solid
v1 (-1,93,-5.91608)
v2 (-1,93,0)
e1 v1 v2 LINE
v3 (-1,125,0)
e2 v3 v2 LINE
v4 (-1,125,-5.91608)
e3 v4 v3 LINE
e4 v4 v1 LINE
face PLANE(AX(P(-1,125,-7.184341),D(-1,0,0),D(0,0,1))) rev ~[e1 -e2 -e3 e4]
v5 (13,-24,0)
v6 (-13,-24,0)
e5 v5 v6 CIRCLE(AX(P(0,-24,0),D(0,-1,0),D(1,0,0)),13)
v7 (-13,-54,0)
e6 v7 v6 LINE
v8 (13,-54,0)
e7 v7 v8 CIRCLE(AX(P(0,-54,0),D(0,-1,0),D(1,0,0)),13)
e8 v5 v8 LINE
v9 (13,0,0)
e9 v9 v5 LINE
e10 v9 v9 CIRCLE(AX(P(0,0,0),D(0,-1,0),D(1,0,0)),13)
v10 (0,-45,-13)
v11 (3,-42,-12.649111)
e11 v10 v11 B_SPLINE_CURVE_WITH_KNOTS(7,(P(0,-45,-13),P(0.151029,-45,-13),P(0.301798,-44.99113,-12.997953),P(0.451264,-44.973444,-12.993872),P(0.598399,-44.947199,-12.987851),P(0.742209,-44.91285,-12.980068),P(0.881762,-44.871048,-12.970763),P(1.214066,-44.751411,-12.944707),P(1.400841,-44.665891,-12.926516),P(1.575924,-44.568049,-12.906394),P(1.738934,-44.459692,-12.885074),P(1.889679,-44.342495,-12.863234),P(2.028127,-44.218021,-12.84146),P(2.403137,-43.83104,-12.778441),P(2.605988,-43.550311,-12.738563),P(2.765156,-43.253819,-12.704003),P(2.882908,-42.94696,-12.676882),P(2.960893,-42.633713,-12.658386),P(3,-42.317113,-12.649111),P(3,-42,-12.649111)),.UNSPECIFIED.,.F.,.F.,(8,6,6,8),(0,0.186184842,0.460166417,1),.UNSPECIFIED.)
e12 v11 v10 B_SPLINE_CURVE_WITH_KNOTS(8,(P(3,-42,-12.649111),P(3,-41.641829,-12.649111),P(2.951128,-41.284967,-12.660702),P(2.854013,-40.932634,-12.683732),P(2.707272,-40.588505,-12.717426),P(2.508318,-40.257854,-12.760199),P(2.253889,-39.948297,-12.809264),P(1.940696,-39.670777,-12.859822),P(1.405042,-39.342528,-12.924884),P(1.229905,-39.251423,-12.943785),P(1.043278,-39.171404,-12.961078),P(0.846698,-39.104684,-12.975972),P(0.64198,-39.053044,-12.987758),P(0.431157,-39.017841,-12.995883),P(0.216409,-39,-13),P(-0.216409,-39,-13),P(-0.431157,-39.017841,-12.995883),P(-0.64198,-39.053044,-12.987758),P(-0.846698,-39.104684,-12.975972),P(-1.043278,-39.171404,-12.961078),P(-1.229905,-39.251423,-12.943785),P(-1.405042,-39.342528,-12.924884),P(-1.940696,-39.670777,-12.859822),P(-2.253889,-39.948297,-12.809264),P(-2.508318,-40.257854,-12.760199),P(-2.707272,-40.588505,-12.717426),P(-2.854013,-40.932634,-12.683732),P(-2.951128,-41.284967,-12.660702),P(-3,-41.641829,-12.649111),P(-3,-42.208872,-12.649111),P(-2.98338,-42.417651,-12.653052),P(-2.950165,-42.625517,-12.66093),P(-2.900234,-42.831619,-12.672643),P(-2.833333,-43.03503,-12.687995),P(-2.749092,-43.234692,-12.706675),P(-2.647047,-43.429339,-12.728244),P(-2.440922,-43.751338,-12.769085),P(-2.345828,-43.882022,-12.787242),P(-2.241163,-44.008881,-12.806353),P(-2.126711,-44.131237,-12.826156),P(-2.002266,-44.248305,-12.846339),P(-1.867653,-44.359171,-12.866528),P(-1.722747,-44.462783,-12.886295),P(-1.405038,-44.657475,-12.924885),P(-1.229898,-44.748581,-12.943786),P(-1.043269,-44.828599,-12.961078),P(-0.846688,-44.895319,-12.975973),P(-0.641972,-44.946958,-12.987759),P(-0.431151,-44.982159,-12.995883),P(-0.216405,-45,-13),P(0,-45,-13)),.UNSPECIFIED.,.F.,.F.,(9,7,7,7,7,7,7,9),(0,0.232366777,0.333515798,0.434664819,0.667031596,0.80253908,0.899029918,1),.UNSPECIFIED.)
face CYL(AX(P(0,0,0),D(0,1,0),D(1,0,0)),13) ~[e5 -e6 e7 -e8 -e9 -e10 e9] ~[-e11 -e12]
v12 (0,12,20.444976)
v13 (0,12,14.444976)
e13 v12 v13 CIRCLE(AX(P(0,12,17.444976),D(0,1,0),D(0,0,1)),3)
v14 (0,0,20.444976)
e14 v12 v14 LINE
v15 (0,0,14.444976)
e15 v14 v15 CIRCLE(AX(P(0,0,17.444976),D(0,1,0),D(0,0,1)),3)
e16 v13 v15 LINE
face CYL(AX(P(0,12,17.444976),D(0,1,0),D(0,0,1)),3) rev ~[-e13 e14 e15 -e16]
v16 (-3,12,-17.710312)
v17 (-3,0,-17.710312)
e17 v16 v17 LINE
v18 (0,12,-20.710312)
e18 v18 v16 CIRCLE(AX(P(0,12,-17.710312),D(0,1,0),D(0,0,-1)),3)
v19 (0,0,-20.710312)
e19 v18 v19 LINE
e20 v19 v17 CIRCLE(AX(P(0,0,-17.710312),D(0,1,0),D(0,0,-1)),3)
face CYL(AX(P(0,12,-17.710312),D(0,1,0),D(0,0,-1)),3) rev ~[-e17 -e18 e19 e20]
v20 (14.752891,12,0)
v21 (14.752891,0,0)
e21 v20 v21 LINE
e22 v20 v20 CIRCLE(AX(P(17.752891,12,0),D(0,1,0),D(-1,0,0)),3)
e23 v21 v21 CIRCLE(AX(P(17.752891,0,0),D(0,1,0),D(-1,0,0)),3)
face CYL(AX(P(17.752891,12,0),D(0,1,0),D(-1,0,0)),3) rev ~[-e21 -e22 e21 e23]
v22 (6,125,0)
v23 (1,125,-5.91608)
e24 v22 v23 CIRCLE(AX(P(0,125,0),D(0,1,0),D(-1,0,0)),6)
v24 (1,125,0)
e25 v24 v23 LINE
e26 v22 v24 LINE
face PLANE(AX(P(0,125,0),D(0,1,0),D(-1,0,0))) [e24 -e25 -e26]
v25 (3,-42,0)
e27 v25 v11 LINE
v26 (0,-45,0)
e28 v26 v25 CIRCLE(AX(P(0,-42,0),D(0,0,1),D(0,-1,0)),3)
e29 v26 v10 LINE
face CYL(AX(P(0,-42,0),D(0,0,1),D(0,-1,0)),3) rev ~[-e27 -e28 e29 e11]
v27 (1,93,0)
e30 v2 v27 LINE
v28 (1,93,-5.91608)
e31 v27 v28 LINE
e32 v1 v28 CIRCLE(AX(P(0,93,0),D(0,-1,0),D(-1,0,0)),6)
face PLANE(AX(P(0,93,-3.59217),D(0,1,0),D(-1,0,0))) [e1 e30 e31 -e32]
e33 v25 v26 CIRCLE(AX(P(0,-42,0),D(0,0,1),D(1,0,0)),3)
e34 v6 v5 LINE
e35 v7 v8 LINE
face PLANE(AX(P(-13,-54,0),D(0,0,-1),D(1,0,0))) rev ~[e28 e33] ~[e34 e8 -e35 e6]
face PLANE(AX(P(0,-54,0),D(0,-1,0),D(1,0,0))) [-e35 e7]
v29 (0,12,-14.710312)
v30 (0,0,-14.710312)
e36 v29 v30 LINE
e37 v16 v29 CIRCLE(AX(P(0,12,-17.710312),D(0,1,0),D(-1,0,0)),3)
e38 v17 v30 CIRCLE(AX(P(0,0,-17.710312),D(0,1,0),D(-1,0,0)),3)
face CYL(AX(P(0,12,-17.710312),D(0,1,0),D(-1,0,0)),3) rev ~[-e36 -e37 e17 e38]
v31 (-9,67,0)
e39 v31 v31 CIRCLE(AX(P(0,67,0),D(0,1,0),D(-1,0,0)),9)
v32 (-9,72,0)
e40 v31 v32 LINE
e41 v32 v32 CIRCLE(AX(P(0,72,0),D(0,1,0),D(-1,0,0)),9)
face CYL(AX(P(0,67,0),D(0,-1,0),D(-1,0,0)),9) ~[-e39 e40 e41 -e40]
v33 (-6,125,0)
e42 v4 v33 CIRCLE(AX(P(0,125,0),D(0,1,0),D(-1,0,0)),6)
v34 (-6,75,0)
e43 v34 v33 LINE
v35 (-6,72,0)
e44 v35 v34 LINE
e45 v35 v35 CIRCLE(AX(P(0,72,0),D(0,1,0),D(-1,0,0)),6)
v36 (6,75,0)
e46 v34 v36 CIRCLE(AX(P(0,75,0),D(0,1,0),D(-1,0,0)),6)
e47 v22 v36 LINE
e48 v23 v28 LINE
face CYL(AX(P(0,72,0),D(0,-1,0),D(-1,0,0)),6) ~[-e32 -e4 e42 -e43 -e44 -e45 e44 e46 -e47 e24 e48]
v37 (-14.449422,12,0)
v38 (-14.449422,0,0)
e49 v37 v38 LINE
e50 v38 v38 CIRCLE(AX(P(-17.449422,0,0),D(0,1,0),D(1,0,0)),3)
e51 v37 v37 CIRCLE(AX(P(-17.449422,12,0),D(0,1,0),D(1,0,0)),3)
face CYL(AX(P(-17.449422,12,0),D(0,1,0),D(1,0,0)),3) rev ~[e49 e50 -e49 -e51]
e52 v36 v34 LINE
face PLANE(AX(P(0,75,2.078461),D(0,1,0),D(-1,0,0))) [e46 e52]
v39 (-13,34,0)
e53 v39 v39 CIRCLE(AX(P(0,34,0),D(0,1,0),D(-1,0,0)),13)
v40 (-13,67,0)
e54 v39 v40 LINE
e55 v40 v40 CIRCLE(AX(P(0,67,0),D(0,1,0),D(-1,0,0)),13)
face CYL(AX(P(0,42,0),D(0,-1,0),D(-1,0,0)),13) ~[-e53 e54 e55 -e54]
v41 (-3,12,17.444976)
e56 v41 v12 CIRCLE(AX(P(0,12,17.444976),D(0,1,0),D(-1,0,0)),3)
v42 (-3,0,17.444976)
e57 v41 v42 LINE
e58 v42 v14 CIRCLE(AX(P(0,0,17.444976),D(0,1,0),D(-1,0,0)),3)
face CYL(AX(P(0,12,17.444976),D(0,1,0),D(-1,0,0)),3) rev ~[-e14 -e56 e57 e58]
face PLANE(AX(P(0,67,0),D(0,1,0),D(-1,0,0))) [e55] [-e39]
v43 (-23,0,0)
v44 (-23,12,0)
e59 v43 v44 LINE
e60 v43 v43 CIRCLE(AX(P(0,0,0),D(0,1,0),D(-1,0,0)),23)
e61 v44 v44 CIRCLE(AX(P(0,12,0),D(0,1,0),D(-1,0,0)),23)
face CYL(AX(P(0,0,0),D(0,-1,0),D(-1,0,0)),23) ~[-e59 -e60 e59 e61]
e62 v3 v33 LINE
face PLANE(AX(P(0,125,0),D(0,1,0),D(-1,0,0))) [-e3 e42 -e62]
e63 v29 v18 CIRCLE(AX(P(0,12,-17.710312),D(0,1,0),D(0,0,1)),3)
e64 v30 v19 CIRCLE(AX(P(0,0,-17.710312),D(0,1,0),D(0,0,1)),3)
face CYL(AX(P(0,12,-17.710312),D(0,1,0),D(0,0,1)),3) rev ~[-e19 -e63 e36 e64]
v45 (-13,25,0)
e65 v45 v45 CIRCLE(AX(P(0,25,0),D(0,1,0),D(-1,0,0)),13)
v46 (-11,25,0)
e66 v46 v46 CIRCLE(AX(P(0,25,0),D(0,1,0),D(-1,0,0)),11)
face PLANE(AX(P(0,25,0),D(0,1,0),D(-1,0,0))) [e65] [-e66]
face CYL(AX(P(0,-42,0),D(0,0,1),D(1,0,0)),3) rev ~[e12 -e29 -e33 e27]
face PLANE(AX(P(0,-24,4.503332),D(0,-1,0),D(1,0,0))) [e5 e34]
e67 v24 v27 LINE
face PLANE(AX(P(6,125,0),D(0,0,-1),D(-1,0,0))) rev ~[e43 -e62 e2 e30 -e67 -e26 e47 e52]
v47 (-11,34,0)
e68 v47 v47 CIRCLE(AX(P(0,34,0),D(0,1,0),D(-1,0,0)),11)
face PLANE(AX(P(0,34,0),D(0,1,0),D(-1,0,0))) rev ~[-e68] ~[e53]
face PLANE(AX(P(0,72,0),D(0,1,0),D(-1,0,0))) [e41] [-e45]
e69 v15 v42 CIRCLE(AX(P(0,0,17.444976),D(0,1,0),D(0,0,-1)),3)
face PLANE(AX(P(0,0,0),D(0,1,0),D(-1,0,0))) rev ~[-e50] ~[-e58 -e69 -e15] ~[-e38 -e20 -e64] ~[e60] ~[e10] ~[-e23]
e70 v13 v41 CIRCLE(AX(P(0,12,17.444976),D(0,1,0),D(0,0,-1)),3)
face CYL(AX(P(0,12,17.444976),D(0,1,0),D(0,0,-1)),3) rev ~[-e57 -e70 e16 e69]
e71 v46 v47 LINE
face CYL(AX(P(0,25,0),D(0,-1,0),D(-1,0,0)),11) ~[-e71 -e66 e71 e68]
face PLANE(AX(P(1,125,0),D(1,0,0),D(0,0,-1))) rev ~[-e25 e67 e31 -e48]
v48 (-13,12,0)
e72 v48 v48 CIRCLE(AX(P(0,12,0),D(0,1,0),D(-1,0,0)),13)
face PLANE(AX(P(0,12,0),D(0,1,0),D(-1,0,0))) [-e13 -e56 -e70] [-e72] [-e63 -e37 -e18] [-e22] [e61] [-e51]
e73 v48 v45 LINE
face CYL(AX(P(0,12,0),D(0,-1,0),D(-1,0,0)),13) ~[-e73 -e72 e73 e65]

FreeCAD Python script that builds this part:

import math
import FreeCAD as App
import Part
import Sketcher
from FreeCAD import Vector


def add_polygon(sketch, points):
    """Adds a closed chain of lines whose ends are joined by coincident constraints."""
    first, n = sketch.GeometryCount, len(points)
    for a, b in zip(points, points[1:] + points[:1]):
        sketch.addGeometry(Part.LineSegment(App.Vector(*a, 0), App.Vector(*b, 0)), False)
    for i in range(n):
        sketch.addConstraint(Sketcher.Constraint("Coincident", first + i, 2, first + (i + 1) % n, 1))

doc = App.newDocument("Part")
params = doc.addObject("Spreadsheet::Sheet", "Params")
for row, (alias, value) in enumerate([
    ("sketch1_diameter", "26 mm"),
    ("pad1_length", "54 mm"),
    ("sketch2_radius", "13 mm"),
    ("pocket1_length", "30 mm"),
    ("sketch3_diameter", "46 mm"),
    ("pad2_length", "12 mm"),
    ("sketch4_diameter", "6 mm"),
    ("pocket2_length", "25 mm"),
    ("sketch5_diameter", "26 mm"),
    ("pad3_length", "13 mm"),
    ("sketch6_diameter", "22 mm"),
    ("pad4_length", "9 mm"),
    ("sketch7_diameter", "26 mm"),
    ("pad5_length", "8 mm"),
    ("sketch8_diameter", "26 mm"),
    ("pad6_length", "25 mm"),
    ("sketch9_radius", "3 mm"),
    ("pocket3_length", "14 mm"),
    ("sketch10_diameter", "18 mm"),
    ("pad7_length", "5 mm"),
    ("sketch11_diameter", "12 mm"),
    ("pad8_length", "53 mm"),
    ("sketch12_radius", "6 mm"),
    ("pocket4_length", "50 mm"),
    ("sketch13_width", "2 mm"),
    ("pocket5_length", "32 mm"),
], start=1):
    params.set(f"A{row}", alias)
    params.set(f"B{row}", "=" + value)
    params.setAlias(f"B{row}", alias)

body = doc.addObject("PartDesign::Body", "Body")

# Sketch on XZ plane
sketch1 = body.newObject("Sketcher::SketchObject", "Sketch")
sketch1.AttachmentSupport = (doc.getObject("XZ_Plane"), [""])
sketch1.MapMode = "FlatFace"
sketch1.addGeometry(Part.Circle(Vector(0, 0, 0), Vector(0, 0, 1), 13), False)
sketch1.addConstraint([
    Sketcher.Constraint("Coincident", 0, 3, -1, 1),
    Sketcher.Constraint("Diameter", 0, 26.0),
])
sketch1.setExpression("Constraints[1]", "Params.sketch1_diameter")
pad1 = body.newObject("PartDesign::Pad", "Pad")
pad1.Profile = sketch1
pad1.setExpression("Length", "Params.pad1_length")

# Sketch on XZ plane
sketch2 = body.newObject("Sketcher::SketchObject", "Sketch001")
sketch2.AttachmentSupport = (doc.getObject("XZ_Plane"), [""])
sketch2.MapMode = "FlatFace"
sketch2.AttachmentOffset = App.Placement(Vector(0, 0, 54), App.Rotation())
sketch2.addGeometry([
    Part.LineSegment(Vector(-13, 0, 0), Vector(13, 0, 0)),
    Part.ArcOfCircle(Part.Circle(Vector(0, 0, 0), Vector(0, 0, 1), 13), math.radians(0), math.radians(180)),
], False)
sketch2.addConstraint([
    Sketcher.Constraint("Coincident", 0, 1, 1, 2),
    Sketcher.Constraint("Coincident", 1, 1, 0, 2),
    Sketcher.Constraint("Horizontal", 0),
    Sketcher.Constraint("Coincident", 1, 3, -1, 1),
    Sketcher.Constraint("PointOnObject", 0, 1, -1),
    Sketcher.Constraint("Radius", 1, 13.0),
])
sketch2.setExpression("Constraints[5]", "Params.sketch2_radius")
pocket1 = body.newObject("PartDesign::Pocket", "Pocket")
pocket1.Profile = sketch2
pocket1.setExpression("Length", "Params.pocket1_length")

# Sketch on XZ plane
sketch3 = body.newObject("Sketcher::SketchObject", "Sketch002")
sketch3.AttachmentSupport = (doc.getObject("XZ_Plane"), [""])
sketch3.MapMode = "FlatFace"
sketch3.addGeometry(Part.Circle(Vector(0, 0, 0), Vector(0, 0, 1), 23), False)
sketch3.addConstraint([
    Sketcher.Constraint("Coincident", 0, 3, -1, 1),
    Sketcher.Constraint("Diameter", 0, 46.0),
])
sketch3.setExpression("Constraints[1]", "Params.sketch3_diameter")
pad2 = body.newObject("PartDesign::Pad", "Pad001")
pad2.Profile = sketch3
pad2.setExpression("Length", "Params.pad2_length")
pad2.Reversed = True

# Sketch on XZ plane
sketch4 = body.newObject("Sketcher::SketchObject", "Sketch003")
sketch4.AttachmentSupport = (doc.getObject("XZ_Plane"), [""])
sketch4.MapMode = "FlatFace"
sketch4.AttachmentOffset = App.Placement(Vector(0, 0, -12), App.Rotation())
sketch4.addGeometry([
    Part.ArcOfCircle(Part.Circle(Vector(0, 17.444976, 0), Vector(0, 0, 1), 3), math.radians(-90), math.radians(90)),  # 0
    Part.ArcOfCircle(Part.Circle(Vector(0, 17.444976, 0), Vector(0, 0, 1), 3), math.radians(180), math.radians(270)),  # 1
    Part.ArcOfCircle(Part.Circle(Vector(0, 17.444976, 0), Vector(0, 0, 1), 3), math.radians(90), math.radians(180)),  # 2
    Part.ArcOfCircle(Part.Circle(Vector(0, -17.710312, 0), Vector(0, 0, 1), 3), math.radians(90), math.radians(180)),  # 3
    Part.ArcOfCircle(Part.Circle(Vector(0, -17.710312, 0), Vector(0, 0, 1), 3), math.radians(-90), math.radians(90)),  # 4
    Part.ArcOfCircle(Part.Circle(Vector(0, -17.710312, 0), Vector(0, 0, 1), 3), math.radians(180), math.radians(270)),  # 5
    Part.Circle(Vector(17.752891, 0, 0), Vector(0, 0, 1), 3),  # 6
    Part.Circle(Vector(-17.449422, 0, 0), Vector(0, 0, 1), 3),  # 7
], False)
sketch4.addConstraint([
    Sketcher.Constraint("Tangent", 0, 1, 1, 2),
    Sketcher.Constraint("Tangent", 1, 1, 2, 2),
    Sketcher.Constraint("Tangent", 2, 1, 0, 2),
    Sketcher.Constraint("Tangent", 3, 1, 4, 2),
    Sketcher.Constraint("Tangent", 4, 1, 5, 2),
    Sketcher.Constraint("Tangent", 5, 1, 3, 2),
    Sketcher.Constraint("Equal", 2, 3),
    Sketcher.Constraint("Equal", 5, 6),
    Sketcher.Constraint("Equal", 6, 7),
    Sketcher.Constraint("PointOnObject", 0, 3, -2),
    Sketcher.Constraint("PointOnObject", 3, 3, -2),
    Sketcher.Constraint("PointOnObject", 6, 3, -1),
    Sketcher.Constraint("PointOnObject", 7, 3, -1),
    Sketcher.Constraint("PointOnObject", 0, 1, -2),
    Sketcher.Constraint("PointOnObject", 2, 1, -2),
    Sketcher.Constraint("PointOnObject", 3, 1, -2),
    Sketcher.Constraint("PointOnObject", 4, 1, -2),
    Sketcher.Constraint("Horizontal", 2, 3, 1, 1),
    Sketcher.Constraint("Horizontal", 4, 3, 5, 1),
    Sketcher.Constraint("Diameter", 6, 6.0),
    Sketcher.Constraint("DistanceX", -1, 1, 6, 3, 17.752891),
    Sketcher.Constraint("DistanceX", 7, 3, -1, 1, 17.449422),
    Sketcher.Constraint("DistanceY", 3, 3, 0, 3, 35.155289),
    Sketcher.Constraint("DistanceY", -1, 1, 0, 3, 17.444976),
])
sketch4.setExpression("Constraints[19]", "Params.sketch4_diameter")
pocket2 = body.newObject("PartDesign::Pocket", "Pocket001")
pocket2.Profile = sketch4
pocket2.setExpression("Length", "Params.pocket2_length")
pocket2.Reversed = True

# Sketch on XZ plane
sketch5 = body.newObject("Sketcher::SketchObject", "Sketch004")
sketch5.AttachmentSupport = (doc.getObject("XZ_Plane"), [""])
sketch5.MapMode = "FlatFace"
sketch5.AttachmentOffset = App.Placement(Vector(0, 0, -12), App.Rotation())
sketch5.addGeometry(Part.Circle(Vector(0, 0, 0), Vector(0, 0, 1), 13), False)
sketch5.addConstraint([
    Sketcher.Constraint("Coincident", 0, 3, -1, 1),
    Sketcher.Constraint("Diameter", 0, 26.0),
])
sketch5.setExpression("Constraints[1]", "Params.sketch5_diameter")
pad3 = body.newObject("PartDesign::Pad", "Pad002")
pad3.Profile = sketch5
pad3.setExpression("Length", "Params.pad3_length")
pad3.Reversed = True

# Sketch on XZ plane
sketch6 = body.newObject("Sketcher::SketchObject", "Sketch005")
sketch6.AttachmentSupport = (doc.getObject("XZ_Plane"), [""])
sketch6.MapMode = "FlatFace"
sketch6.AttachmentOffset = App.Placement(Vector(0, 0, -25), App.Rotation())
sketch6.addGeometry(Part.Circle(Vector(0, 0, 0), Vector(0, 0, 1), 11), False)
sketch6.addConstraint([
    Sketcher.Constraint("Coincident", 0, 3, -1, 1),
    Sketcher.Constraint("Diameter", 0, 22.0),
])
sketch6.setExpression("Constraints[1]", "Params.sketch6_diameter")
pad4 = body.newObject("PartDesign::Pad", "Pad003")
pad4.Profile = sketch6
pad4.setExpression("Length", "Params.pad4_length")
pad4.Reversed = True

# Sketch on XZ plane
sketch7 = body.newObject("Sketcher::SketchObject", "Sketch006")
sketch7.AttachmentSupport = (doc.getObject("XZ_Plane"), [""])
sketch7.MapMode = "FlatFace"
sketch7.AttachmentOffset = App.Placement(Vector(0, 0, -34), App.Rotation())
sketch7.addGeometry(Part.Circle(Vector(0, 0, 0), Vector(0, 0, 1), 13), False)
sketch7.addConstraint([
    Sketcher.Constraint("Coincident", 0, 3, -1, 1),
    Sketcher.Constraint("Diameter", 0, 26.0),
])
sketch7.setExpression("Constraints[1]", "Params.sketch7_diameter")
pad5 = body.newObject("PartDesign::Pad", "Pad004")
pad5.Profile = sketch7
pad5.setExpression("Length", "Params.pad5_length")
pad5.Reversed = True

# Sketch on XZ plane
sketch8 = body.newObject("Sketcher::SketchObject", "Sketch007")
sketch8.AttachmentSupport = (doc.getObject("XZ_Plane"), [""])
sketch8.MapMode = "FlatFace"
sketch8.AttachmentOffset = App.Placement(Vector(0, 0, -42), App.Rotation())
sketch8.addGeometry(Part.Circle(Vector(0, 0, 0), Vector(0, 0, 1), 13), False)
sketch8.addConstraint([
    Sketcher.Constraint("Coincident", 0, 3, -1, 1),
    Sketcher.Constraint("Diameter", 0, 26.0),
])
sketch8.setExpression("Constraints[1]", "Params.sketch8_diameter")
pad6 = body.newObject("PartDesign::Pad", "Pad005")
pad6.Profile = sketch8
pad6.setExpression("Length", "Params.pad6_length")
pad6.Reversed = True

# Sketch on XY plane
sketch9 = body.newObject("Sketcher::SketchObject", "Sketch008")
sketch9.AttachmentSupport = (doc.getObject("XY_Plane"), [""])
sketch9.MapMode = "FlatFace"
sketch9.addGeometry([
    Part.ArcOfCircle(Part.Circle(Vector(0, -42, 0), Vector(0, 0, 1), 3), math.radians(-90), math.radians(0)),
    Part.ArcOfCircle(Part.Circle(Vector(0, -42, 0), Vector(0, 0, 1), 3), math.radians(0), math.radians(270)),
], False)
sketch9.addConstraint([
    Sketcher.Constraint("Tangent", 0, 1, 1, 2),
    Sketcher.Constraint("Coincident", 1, 1, 0, 2),
    Sketcher.Constraint("PointOnObject", 0, 3, -2),
    Sketcher.Constraint("PointOnObject", 0, 1, -2),
    Sketcher.Constraint("Horizontal", 0, 3, 1, 1),
    Sketcher.Constraint("Radius", 0, 3.0),
    Sketcher.Constraint("DistanceY", 0, 3, -1, 1, 42.0),
])
sketch9.setExpression("Constraints[5]", "Params.sketch9_radius")
pocket3 = body.newObject("PartDesign::Pocket", "Pocket002")
pocket3.Profile = sketch9
pocket3.setExpression("Length", "Params.pocket3_length")

# Sketch on XZ plane
sketch10 = body.newObject("Sketcher::SketchObject", "Sketch009")
sketch10.AttachmentSupport = (doc.getObject("XZ_Plane"), [""])
sketch10.MapMode = "FlatFace"
sketch10.AttachmentOffset = App.Placement(Vector(0, 0, -67), App.Rotation())
sketch10.addGeometry(Part.Circle(Vector(0, 0, 0), Vector(0, 0, 1), 9), False)
sketch10.addConstraint([
    Sketcher.Constraint("Coincident", 0, 3, -1, 1),
    Sketcher.Constraint("Diameter", 0, 18.0),
])
sketch10.setExpression("Constraints[1]", "Params.sketch10_diameter")
pad7 = body.newObject("PartDesign::Pad", "Pad006")
pad7.Profile = sketch10
pad7.setExpression("Length", "Params.pad7_length")
pad7.Reversed = True

# Sketch on XZ plane
sketch11 = body.newObject("Sketcher::SketchObject", "Sketch010")
sketch11.AttachmentSupport = (doc.getObject("XZ_Plane"), [""])
sketch11.MapMode = "FlatFace"
sketch11.AttachmentOffset = App.Placement(Vector(0, 0, -72), App.Rotation())
sketch11.addGeometry(Part.Circle(Vector(0, 0, 0), Vector(0, 0, 1), 6), False)
sketch11.addConstraint([
    Sketcher.Constraint("Coincident", 0, 3, -1, 1),
    Sketcher.Constraint("Diameter", 0, 12.0),
])
sketch11.setExpression("Constraints[1]", "Params.sketch11_diameter")
pad8 = body.newObject("PartDesign::Pad", "Pad007")
pad8.Profile = sketch11
pad8.setExpression("Length", "Params.pad8_length")
pad8.Reversed = True

# Sketch on XZ plane
sketch12 = body.newObject("Sketcher::SketchObject", "Sketch011")
sketch12.AttachmentSupport = (doc.getObject("XZ_Plane"), [""])
sketch12.MapMode = "FlatFace"
sketch12.AttachmentOffset = App.Placement(Vector(0, 0, -125), App.Rotation())
sketch12.addGeometry([
    Part.ArcOfCircle(Part.Circle(Vector(0, 0, 0), Vector(0, 0, 1), 6), math.radians(0), math.radians(180)),
    Part.LineSegment(Vector(6, 0, 0), Vector(-6, 0, 0)),
], False)
sketch12.addConstraint([
    Sketcher.Constraint("Coincident", 0, 1, 1, 1),
    Sketcher.Constraint("Coincident", 1, 2, 0, 2),
    Sketcher.Constraint("Horizontal", 1),
    Sketcher.Constraint("Coincident", 0, 3, -1, 1),
    Sketcher.Constraint("PointOnObject", 0, 1, -1),
    Sketcher.Constraint("Radius", 0, 6.0),
])
sketch12.setExpression("Constraints[5]", "Params.sketch12_radius")
pocket4 = body.newObject("PartDesign::Pocket", "Pocket003")
pocket4.Profile = sketch12
pocket4.setExpression("Length", "Params.pocket4_length")
pocket4.Reversed = True

# Sketch on XZ plane
sketch13 = body.newObject("Sketcher::SketchObject", "Sketch012")
sketch13.AttachmentSupport = (doc.getObject("XZ_Plane"), [""])
sketch13.MapMode = "FlatFace"
sketch13.AttachmentOffset = App.Placement(Vector(0, 0, -125), App.Rotation())
add_polygon(sketch13, [(-1, 0), (1, 0), (1, -7.184341), (-1, -7.184341)])  # lines 0-3
sketch13.addConstraint([
    Sketcher.Constraint("Horizontal", 0),
    Sketcher.Constraint("Vertical", 1),
    Sketcher.Constraint("Horizontal", 2),
    Sketcher.Constraint("Vertical", 3),
    Sketcher.Constraint("Symmetric", 0, 2, 3, 2, -1, 1),
    Sketcher.Constraint("DistanceX", 0, 1, 0, 2, 2.0),
    Sketcher.Constraint("DistanceY", 1, 2, 1, 1, 7.184341),
])
sketch13.setExpression("Constraints[9]", "Params.sketch13_width")
pocket5 = body.newObject("PartDesign::Pocket", "Pocket004")
pocket5.Profile = sketch13
pocket5.setExpression("Length", "Params.pocket5_length")
pocket5.Reversed = True

doc.recompute()
